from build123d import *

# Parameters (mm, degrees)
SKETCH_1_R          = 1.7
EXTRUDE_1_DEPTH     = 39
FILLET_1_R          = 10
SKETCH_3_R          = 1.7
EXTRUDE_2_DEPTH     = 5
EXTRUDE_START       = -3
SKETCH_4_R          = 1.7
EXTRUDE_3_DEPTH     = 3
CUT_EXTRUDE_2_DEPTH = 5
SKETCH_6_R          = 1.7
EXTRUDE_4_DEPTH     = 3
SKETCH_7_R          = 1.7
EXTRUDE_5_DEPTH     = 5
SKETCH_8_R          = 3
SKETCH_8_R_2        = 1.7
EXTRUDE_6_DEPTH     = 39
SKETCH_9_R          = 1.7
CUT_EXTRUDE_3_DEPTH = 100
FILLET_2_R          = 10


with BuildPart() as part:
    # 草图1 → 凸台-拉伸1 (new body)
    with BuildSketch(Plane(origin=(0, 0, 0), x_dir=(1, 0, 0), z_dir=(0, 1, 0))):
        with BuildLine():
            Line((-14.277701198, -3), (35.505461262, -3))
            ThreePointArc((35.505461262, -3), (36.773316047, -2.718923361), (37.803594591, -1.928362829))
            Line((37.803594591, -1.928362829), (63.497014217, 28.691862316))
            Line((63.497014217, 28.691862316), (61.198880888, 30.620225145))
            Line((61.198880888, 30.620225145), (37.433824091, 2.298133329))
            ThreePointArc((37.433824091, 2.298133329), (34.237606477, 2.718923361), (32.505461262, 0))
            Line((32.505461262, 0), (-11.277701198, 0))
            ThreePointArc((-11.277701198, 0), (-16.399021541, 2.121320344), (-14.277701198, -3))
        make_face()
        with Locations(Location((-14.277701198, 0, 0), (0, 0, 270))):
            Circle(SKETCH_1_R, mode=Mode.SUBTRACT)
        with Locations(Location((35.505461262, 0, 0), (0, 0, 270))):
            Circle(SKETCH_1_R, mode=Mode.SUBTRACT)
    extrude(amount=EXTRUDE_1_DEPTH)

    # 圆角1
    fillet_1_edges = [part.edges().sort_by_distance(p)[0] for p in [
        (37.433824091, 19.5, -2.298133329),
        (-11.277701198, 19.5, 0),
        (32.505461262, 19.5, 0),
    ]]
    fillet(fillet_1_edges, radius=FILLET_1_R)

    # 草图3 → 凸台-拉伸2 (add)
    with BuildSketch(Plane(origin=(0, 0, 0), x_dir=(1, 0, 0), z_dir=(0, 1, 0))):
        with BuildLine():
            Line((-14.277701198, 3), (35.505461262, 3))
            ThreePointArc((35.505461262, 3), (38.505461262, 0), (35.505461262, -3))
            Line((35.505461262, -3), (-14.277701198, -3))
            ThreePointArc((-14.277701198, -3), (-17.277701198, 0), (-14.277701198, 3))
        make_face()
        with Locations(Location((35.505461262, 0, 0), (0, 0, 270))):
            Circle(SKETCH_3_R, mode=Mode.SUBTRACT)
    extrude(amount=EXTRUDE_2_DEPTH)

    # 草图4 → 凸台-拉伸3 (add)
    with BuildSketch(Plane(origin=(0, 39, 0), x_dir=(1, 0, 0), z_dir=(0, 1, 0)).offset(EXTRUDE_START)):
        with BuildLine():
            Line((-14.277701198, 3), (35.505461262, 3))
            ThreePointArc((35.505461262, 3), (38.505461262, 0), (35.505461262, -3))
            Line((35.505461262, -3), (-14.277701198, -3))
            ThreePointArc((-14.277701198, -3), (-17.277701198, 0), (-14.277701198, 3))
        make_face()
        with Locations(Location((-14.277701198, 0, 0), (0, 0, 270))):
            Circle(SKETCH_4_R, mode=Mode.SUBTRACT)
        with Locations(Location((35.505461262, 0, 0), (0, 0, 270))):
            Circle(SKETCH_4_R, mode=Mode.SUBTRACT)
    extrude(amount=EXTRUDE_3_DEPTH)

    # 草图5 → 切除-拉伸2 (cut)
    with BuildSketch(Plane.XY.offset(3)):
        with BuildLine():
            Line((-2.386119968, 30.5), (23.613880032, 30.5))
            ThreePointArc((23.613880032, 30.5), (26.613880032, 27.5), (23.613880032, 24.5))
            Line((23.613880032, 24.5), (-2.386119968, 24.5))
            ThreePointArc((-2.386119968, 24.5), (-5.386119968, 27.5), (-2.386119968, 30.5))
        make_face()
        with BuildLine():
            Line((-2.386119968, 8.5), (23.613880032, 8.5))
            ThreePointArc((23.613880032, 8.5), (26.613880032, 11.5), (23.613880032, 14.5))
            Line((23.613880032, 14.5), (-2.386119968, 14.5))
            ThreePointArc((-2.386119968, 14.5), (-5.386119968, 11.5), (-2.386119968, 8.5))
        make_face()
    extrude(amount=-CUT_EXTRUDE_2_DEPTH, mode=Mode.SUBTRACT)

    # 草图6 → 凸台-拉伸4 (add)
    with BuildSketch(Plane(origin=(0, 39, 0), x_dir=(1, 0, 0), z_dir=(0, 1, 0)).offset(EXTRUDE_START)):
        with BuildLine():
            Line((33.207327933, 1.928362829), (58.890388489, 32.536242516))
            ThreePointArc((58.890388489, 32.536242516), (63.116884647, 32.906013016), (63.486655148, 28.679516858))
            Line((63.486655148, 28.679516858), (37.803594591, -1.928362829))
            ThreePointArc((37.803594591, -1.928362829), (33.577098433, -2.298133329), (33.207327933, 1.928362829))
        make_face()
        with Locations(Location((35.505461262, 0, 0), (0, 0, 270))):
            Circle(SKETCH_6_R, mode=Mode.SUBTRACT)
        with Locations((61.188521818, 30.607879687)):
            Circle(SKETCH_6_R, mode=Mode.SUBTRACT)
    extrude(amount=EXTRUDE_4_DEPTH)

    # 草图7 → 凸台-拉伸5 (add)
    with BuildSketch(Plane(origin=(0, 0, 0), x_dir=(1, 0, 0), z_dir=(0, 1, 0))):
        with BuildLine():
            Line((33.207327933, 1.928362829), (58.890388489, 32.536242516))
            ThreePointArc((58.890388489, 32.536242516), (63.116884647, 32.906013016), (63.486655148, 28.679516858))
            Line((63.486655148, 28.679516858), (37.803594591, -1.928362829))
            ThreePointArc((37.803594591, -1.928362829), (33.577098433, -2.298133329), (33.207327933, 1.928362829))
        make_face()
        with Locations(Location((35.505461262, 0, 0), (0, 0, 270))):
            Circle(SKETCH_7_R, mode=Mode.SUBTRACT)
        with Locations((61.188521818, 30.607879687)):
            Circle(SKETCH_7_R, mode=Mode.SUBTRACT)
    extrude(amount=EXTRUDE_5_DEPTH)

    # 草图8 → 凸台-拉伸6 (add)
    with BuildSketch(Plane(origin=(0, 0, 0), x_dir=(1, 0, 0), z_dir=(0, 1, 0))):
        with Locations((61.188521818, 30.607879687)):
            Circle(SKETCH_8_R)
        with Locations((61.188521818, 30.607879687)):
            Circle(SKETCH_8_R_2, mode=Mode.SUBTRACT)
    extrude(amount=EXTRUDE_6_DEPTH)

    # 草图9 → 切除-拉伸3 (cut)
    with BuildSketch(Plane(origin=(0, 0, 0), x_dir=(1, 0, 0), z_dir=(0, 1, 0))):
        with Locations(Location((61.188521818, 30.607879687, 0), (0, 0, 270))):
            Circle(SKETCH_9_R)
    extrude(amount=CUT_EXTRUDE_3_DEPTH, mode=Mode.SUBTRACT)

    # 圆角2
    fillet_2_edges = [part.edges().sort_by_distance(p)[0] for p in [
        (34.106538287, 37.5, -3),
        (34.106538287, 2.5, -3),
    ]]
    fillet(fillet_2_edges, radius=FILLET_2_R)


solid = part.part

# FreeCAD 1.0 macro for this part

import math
import FreeCAD as App
import Part
import Sketcher

V = App.Vector
Q = App.Units.Quantity


def edges_at(feature, points):
    """Names of the edges that pass closest to the given points."""
    edges = feature.Shape.Edges
    near = lambda p: min(range(len(edges)), key=lambda i: edges[i].distToShape(Part.Vertex(*p))[0])
    return sorted({f"Edge{near(p) + 1}" for p in points})

doc = App.newDocument("Part")
body = doc.addObject("PartDesign::Body", "Body")

sketch1 = doc.addObject("Sketcher::SketchObject", "Sketch")
body.addObject(sketch1)
sketch1.AttachmentSupport = (doc.XZ_Plane, [""])
sketch1.MapMode = "FlatFace"
sketch1.addGeometry(Part.LineSegment(V(-14.3, 3, 0), V(35.5, 3, 0)), False)
sketch1.addGeometry(Part.ArcOfCircle(Part.Circle(V(35.5, 0, 0), V(0, 0, 1), 3), math.radians(40), math.radians(90)), False)
sketch1.addGeometry(Part.LineSegment(V(37.8, 1.9, 0), V(63.5, -28.7, 0)), False)
sketch1.addGeometry(Part.LineSegment(V(63.5, -28.7, 0), V(61.2, -30.6, 0)), False)
sketch1.addGeometry(Part.LineSegment(V(61.2, -30.6, 0), V(37.4, -2.3, 0)), False)
sketch1.addGeometry(Part.ArcOfCircle(Part.Circle(V(35.5, 0, 0), V(0, 0, 1), 3), math.radians(180), math.radians(310)), False)
sketch1.addGeometry(Part.LineSegment(V(32.5, 0, 0), V(-11.3, 0, 0)), False)
sketch1.addGeometry(Part.ArcOfCircle(Part.Circle(V(-14.3, 0, 0), V(0, 0, 1), 3), math.radians(90), math.radians(360)), False)
sketch1.addGeometry(Part.Circle(V(-14.3, 0, 0), V(0, 0, 1), 1.7), False)
sketch1.addGeometry(Part.Circle(V(35.5, 0, 0), V(0, 0, 1), 1.7), False)
sketch1.addConstraint(Sketcher.Constraint("Tangent", 0, 2, 1, 2))
sketch1.addConstraint(Sketcher.Constraint("Tangent", 1, 1, 2, 1))
sketch1.addConstraint(Sketcher.Constraint("Coincident", 2, 2, 3, 1))
sketch1.addConstraint(Sketcher.Constraint("Coincident", 3, 2, 4, 1))
sketch1.addConstraint(Sketcher.Constraint("Coincident", 4, 2, 5, 2))
sketch1.addConstraint(Sketcher.Constraint("Coincident", 5, 1, 6, 1))
sketch1.addConstraint(Sketcher.Constraint("Coincident", 6, 2, 7, 2))
sketch1.addConstraint(Sketcher.Constraint("Tangent", 7, 1, 0, 1))
sketch1.addConstraint(Sketcher.Constraint("Horizontal", 0))
sketch1.addConstraint(Sketcher.Constraint("Horizontal", 6))
sketch1.addConstraint(Sketcher.Constraint("Coincident", 5, 3, 1, 3))
sketch1.addConstraint(Sketcher.Constraint("Coincident", 8, 3, 7, 3))
sketch1.addConstraint(Sketcher.Constraint("Coincident", 9, 3, 1, 3))
sketch1.addConstraint(Sketcher.Constraint("Equal", 1, 5))
sketch1.addConstraint(Sketcher.Constraint("Equal", 5, 7))
sketch1.addConstraint(Sketcher.Constraint("Equal", 8, 9))
sketch1.addConstraint(Sketcher.Constraint("PointOnObject", 1, 3, -1))
sketch1.addConstraint(Sketcher.Constraint("PointOnObject", 5, 1, -1))
sketch1.addConstraint(Sketcher.Constraint("Perpendicular", 2, 3))
sketch1.addConstraint(Sketcher.Constraint("Perpendicular", 3, 4))
sketch1.addConstraint(Sketcher.Constraint("Radius", 1, Q("3 mm")))
sketch1.addConstraint(Sketcher.Constraint("Diameter", 8, Q("3.4 mm")))
sketch1.addConstraint(Sketcher.Constraint("Angle", 2, Q("-50 deg")))
sketch1.addConstraint(Sketcher.Constraint("Distance", 3, Q("3 mm")))
sketch1.addConstraint(Sketcher.Constraint("DistanceX", 7, 3, -1, 1, Q("14.277701 mm")))
sketch1.addConstraint(Sketcher.Constraint("DistanceX", 0, 1, 0, 2, Q("49.783162 mm")))
sketch1.addConstraint(Sketcher.Constraint("DistanceX", -1, 1, 3, 2, Q("61.198881 mm")))
pad1 = doc.addObject("PartDesign::Pad", "Pad")
body.addObject(pad1)
pad1.Profile = sketch1
pad1.Length = 39
pad1.Reversed = True
doc.recompute()

fillet = doc.addObject("PartDesign::Fillet", "Fillet")
body.addObject(fillet)
fillet.Base = (pad1, edges_at(pad1, [(37.434, 19.5, -2.298), (-11.278, 19.5, 0), (32.505, 19.5, 0)]))
fillet.Radius = 10

sketch2 = doc.addObject("Sketcher::SketchObject", "Sketch001")
body.addObject(sketch2)
sketch2.AttachmentSupport = (doc.XZ_Plane, [""])
sketch2.MapMode = "FlatFace"
sketch2.addGeometry(Part.LineSegment(V(35.5, -3, 0), V(-14.3, -3, 0)), False)
sketch2.addGeometry(Part.ArcOfCircle(Part.Circle(V(-14.3, 0, 0), V(0, 0, 1), 3), math.radians(90), math.radians(270)), False)
sketch2.addGeometry(Part.LineSegment(V(-14.3, 3, 0), V(35.5, 3, 0)), False)
sketch2.addGeometry(Part.ArcOfCircle(Part.Circle(V(35.5, 0, 0), V(0, 0, 1), 3), math.radians(-90), math.radians(90)), False)
sketch2.addGeometry(Part.Circle(V(35.5, 0, 0), V(0, 0, 1), 1.7), False)
sketch2.addConstraint(Sketcher.Constraint("Tangent", 0, 2, 1, 2))
sketch2.addConstraint(Sketcher.Constraint("Tangent", 1, 1, 2, 1))
sketch2.addConstraint(Sketcher.Constraint("Tangent", 2, 2, 3, 2))
sketch2.addConstraint(Sketcher.Constraint("Tangent", 3, 1, 0, 1))
sketch2.addConstraint(Sketcher.Constraint("Horizontal", 0))
sketch2.addConstraint(Sketcher.Constraint("Horizontal", 2))
sketch2.addConstraint(Sketcher.Constraint("Coincident", 4, 3, 3, 3))
sketch2.addConstraint(Sketcher.Constraint("PointOnObject", 1, 3, -1))
sketch2.addConstraint(Sketcher.Constraint("Radius", 1, Q("3 mm")))
sketch2.addConstraint(Sketcher.Constraint("Diameter", 4, Q("3.4 mm")))
sketch2.addConstraint(Sketcher.Constraint("DistanceX", 1, 3, -1, 1, Q("14.277701 mm")))
sketch2.addConstraint(Sketcher.Constraint("DistanceX", 0, 2, 0, 1, Q("49.783162 mm")))
pad2 = doc.addObject("PartDesign::Pad", "Pad001")
body.addObject(pad2)
pad2.Profile = sketch2
pad2.Length = 5
pad2.Reversed = True

sketch3 = doc.addObject("Sketcher::SketchObject", "Sketch002")
body.addObject(sketch3)
sketch3.AttachmentSupport = (doc.XZ_Plane, [""])
sketch3.MapMode = "FlatFace"
sketch3.AttachmentOffset = App.Placement(V(0, 0, -36), App.Rotation())
sketch3.addGeometry(Part.LineSegment(V(35.5, -3, 0), V(-14.3, -3, 0)), False)
sketch3.addGeometry(Part.ArcOfCircle(Part.Circle(V(-14.3, 0, 0), V(0, 0, 1), 3), math.radians(90), math.radians(270)), False)
sketch3.addGeometry(Part.LineSegment(V(-14.3, 3, 0), V(35.5, 3, 0)), False)
sketch3.addGeometry(Part.ArcOfCircle(Part.Circle(V(35.5, 0, 0), V(0, 0, 1), 3), math.radians(-90), math.radians(90)), False)
sketch3.addGeometry(Part.Circle(V(35.5, 0, 0), V(0, 0, 1), 1.7), False)
sketch3.addGeometry(Part.Circle(V(-14.3, 0, 0), V(0, 0, 1), 1.7), False)
sketch3.addConstraint(Sketcher.Constraint("Tangent", 0, 2, 1, 2))
sketch3.addConstraint(Sketcher.Constraint("Tangent", 1, 1, 2, 1))
sketch3.addConstraint(Sketcher.Constraint("Tangent", 2, 2, 3, 2))
sketch3.addConstraint(Sketcher.Constraint("Tangent", 3, 1, 0, 1))
sketch3.addConstraint(Sketcher.Constraint("Horizontal", 0))
sketch3.addConstraint(Sketcher.Constraint("Horizontal", 2))
sketch3.addConstraint(Sketcher.Constraint("Coincident", 4, 3, 3, 3))
sketch3.addConstraint(Sketcher.Constraint("Coincident", 5, 3, 1, 3))
sketch3.addConstraint(Sketcher.Constraint("Equal", 4, 5))
sketch3.addConstraint(Sketcher.Constraint("PointOnObject", 1, 3, -1))
sketch3.addConstraint(Sketcher.Constraint("Radius", 1, Q("3 mm")))
sketch3.addConstraint(Sketcher.Constraint("Diameter", 4, Q("3.4 mm")))
sketch3.addConstraint(Sketcher.Constraint("DistanceX", 1, 3, -1, 1, Q("14.277701 mm")))
sketch3.addConstraint(Sketcher.Constraint("DistanceX", 0, 2, 0, 1, Q("49.783162 mm")))
pad3 = doc.addObject("PartDesign::Pad", "Pad002")
body.addObject(pad3)
pad3.Profile = sketch3
pad3.Length = 3
pad3.Reversed = True

sketch4 = doc.addObject("Sketcher::SketchObject", "Sketch003")
body.addObject(sketch4)
sketch4.AttachmentSupport = (doc.XY_Plane, [""])
sketch4.MapMode = "FlatFace"
sketch4.AttachmentOffset = App.Placement(V(0, 0, 3), App.Rotation())
sketch4.addGeometry(Part.LineSegment(V(23.6, 30.5, 0), V(-2.4, 30.5, 0)), False)
sketch4.addGeometry(Part.ArcOfCircle(Part.Circle(V(-2.4, 27.5, 0), V(0, 0, 1), 3), math.radians(90), math.radians(270)), False)
sketch4.addGeometry(Part.LineSegment(V(-2.4, 24.5, 0), V(23.6, 24.5, 0)), False)
sketch4.addGeometry(Part.ArcOfCircle(Part.Circle(V(23.6, 27.5, 0), V(0, 0, 1), 3), math.radians(-90), math.radians(90)), False)
sketch4.addGeometry(Part.LineSegment(V(-2.4, 8.5, 0), V(23.6, 8.5, 0)), False)
sketch4.addGeometry(Part.ArcOfCircle(Part.Circle(V(23.6, 11.5, 0), V(0, 0, 1), 3), math.radians(-90), math.radians(90)), False)
sketch4.addGeometry(Part.LineSegment(V(23.6, 14.5, 0), V(-2.4, 14.5, 0)), False)
sketch4.addGeometry(Part.ArcOfCircle(Part.Circle(V(-2.4, 11.5, 0), V(0, 0, 1), 3), math.radians(90), math.radians(270)), False)
sketch4.addConstraint(Sketcher.Constraint("Tangent", 0, 2, 1, 1))
sketch4.addConstraint(Sketcher.Constraint("Tangent", 1, 2, 2, 1))
sketch4.addConstraint(Sketcher.Constraint("Tangent", 2, 2, 3, 1))
sketch4.addConstraint(Sketcher.Constraint("Tangent", 3, 2, 0, 1))
sketch4.addConstraint(Sketcher.Constraint("Tangent", 4, 2, 5, 1))
sketch4.addConstraint(Sketcher.Constraint("Tangent", 5, 2, 6, 1))
sketch4.addConstraint(Sketcher.Constraint("Tangent", 6, 2, 7, 1))
sketch4.addConstraint(Sketcher.Constraint("Tangent", 7, 2, 4, 1))
sketch4.addConstraint(Sketcher.Constraint("Horizontal", 0))
sketch4.addConstraint(Sketcher.Constraint("Horizontal", 2))
sketch4.addConstraint(Sketcher.Constraint("Horizontal", 4))
sketch4.addConstraint(Sketcher.Constraint("Horizontal", 6))
sketch4.addConstraint(Sketcher.Constraint("Equal", 3, 5))
sketch4.addConstraint(Sketcher.Constraint("Vertical", 3, 3, 5, 3))
sketch4.addConstraint(Sketcher.Constraint("Vertical", 1, 3, 7, 3))
sketch4.addConstraint(Sketcher.Constraint("Radius", 1, Q("3 mm")))
sketch4.addConstraint(Sketcher.Constraint("DistanceX", 0, 2, 0, 1, Q("26 mm")))
sketch4.addConstraint(Sketcher.Constraint("DistanceY", 5, 3, 3, 3, Q("16 mm")))
sketch4.addConstraint(Sketcher.Constraint("DistanceY", -1, 1, 1, 3, Q("27.5 mm")))
sketch4.addConstraint(Sketcher.Constraint("DistanceX", 1, 3, -1, 1, Q("2.38612 mm")))
pocket1 = doc.addObject("PartDesign::Pocket", "Pocket")
body.addObject(pocket1)
pocket1.Profile = sketch4
pocket1.Length = 5

sketch5 = doc.addObject("Sketcher::SketchObject", "Sketch004")
body.addObject(sketch5)
sketch5.AttachmentSupport = (doc.XZ_Plane, [""])
sketch5.MapMode = "FlatFace"
sketch5.AttachmentOffset = App.Placement(V(0, 0, -36), App.Rotation())
sketch5.addGeometry(Part.LineSegment(V(58.9, -32.5, 0), V(33.2, -1.9, 0)), False)
sketch5.addGeometry(Part.ArcOfCircle(Part.Circle(V(35.5, 0, 0), V(0, 0, 1), 3), math.radians(40), math.radians(220)), False)
sketch5.addGeometry(Part.LineSegment(V(37.8, 1.9, 0), V(63.5, -28.7, 0)), False)
sketch5.addGeometry(Part.ArcOfCircle(Part.Circle(V(61.2, -30.6, 0), V(0, 0, 1), 3), math.radians(-140), math.radians(40)), False)
sketch5.addGeometry(Part.Circle(V(35.5, 0, 0), V(0, 0, 1), 1.7), False)
sketch5.addGeometry(Part.Circle(V(61.2, -30.6, 0), V(0, 0, 1), 1.7), False)
sketch5.addConstraint(Sketcher.Constraint("Tangent", 0, 2, 1, 2))
sketch5.addConstraint(Sketcher.Constraint("Tangent", 1, 1, 2, 1))
sketch5.addConstraint(Sketcher.Constraint("Tangent", 2, 2, 3, 2))
sketch5.addConstraint(Sketcher.Constraint("Tangent", 3, 1, 0, 1))
sketch5.addConstraint(Sketcher.Constraint("Coincident", 4, 3, 1, 3))
sketch5.addConstraint(Sketcher.Constraint("Coincident", 5, 3, 3, 3))
sketch5.addConstraint(Sketcher.Constraint("Equal", 1, 3))
sketch5.addConstraint(Sketcher.Constraint("Equal", 4, 5))
sketch5.addConstraint(Sketcher.Constraint("PointOnObject", 1, 3, -1))
sketch5.addConstraint(Sketcher.Constraint("Radius", 1, Q("3 mm")))
sketch5.addConstraint(Sketcher.Constraint("Diameter", 4, Q("3.4 mm")))
sketch5.addConstraint(Sketcher.Constraint("Angle", 0, Q("130 deg")))
sketch5.addConstraint(Sketcher.Constraint("Distance", 0, Q("39.955749 mm")))
sketch5.addConstraint(Sketcher.Constraint("DistanceX", -1, 1, 1, 3, Q("35.505461 mm")))
pad4 = doc.addObject("PartDesign::Pad", "Pad003")
body.addObject(pad4)
pad4.Profile = sketch5
pad4.Length = 3
pad4.Reversed = True

sketch6 = doc.addObject("Sketcher::SketchObject", "Sketch005")
body.addObject(sketch6)
sketch6.AttachmentSupport = (doc.XZ_Plane, [""])
sketch6.MapMode = "FlatFace"
sketch6.addGeometry(Part.LineSegment(V(58.9, -32.5, 0), V(33.2, -1.9, 0)), False)
sketch6.addGeometry(Part.ArcOfCircle(Part.Circle(V(35.5, 0, 0), V(0, 0, 1), 3), math.radians(40), math.radians(220)), False)
sketch6.addGeometry(Part.LineSegment(V(37.8, 1.9, 0), V(63.5, -28.7, 0)), False)
sketch6.addGeometry(Part.ArcOfCircle(Part.Circle(V(61.2, -30.6, 0), V(0, 0, 1), 3), math.radians(-140), math.radians(40)), False)
sketch6.addGeometry(Part.Circle(V(35.5, 0, 0), V(0, 0, 1), 1.7), False)
sketch6.addGeometry(Part.Circle(V(61.2, -30.6, 0), V(0, 0, 1), 1.7), False)
sketch6.addConstraint(Sketcher.Constraint("Tangent", 0, 2, 1, 2))
sketch6.addConstraint(Sketcher.Constraint("Tangent", 1, 1, 2, 1))
sketch6.addConstraint(Sketcher.Constraint("Tangent", 2, 2, 3, 2))
sketch6.addConstraint(Sketcher.Constraint("Tangent", 3, 1, 0, 1))
sketch6.addConstraint(Sketcher.Constraint("Coincident", 4, 3, 1, 3))
sketch6.addConstraint(Sketcher.Constraint("Coincident", 5, 3, 3, 3))
sketch6.addConstraint(Sketcher.Constraint("Equal", 1, 3))
sketch6.addConstraint(Sketcher.Constraint("Equal", 4, 5))
sketch6.addConstraint(Sketcher.Constraint("PointOnObject", 1, 3, -1))
sketch6.addConstraint(Sketcher.Constraint("Radius", 1, Q("3 mm")))
sketch6.addConstraint(Sketcher.Constraint("Diameter", 4, Q("3.4 mm")))
sketch6.addConstraint(Sketcher.Constraint("Angle", 0, Q("130 deg")))
sketch6.addConstraint(Sketcher.Constraint("Distance", 0, Q("39.955749 mm")))
sketch6.addConstraint(Sketcher.Constraint("DistanceX", -1, 1, 1, 3, Q("35.505461 mm")))
pad5 = doc.addObject("PartDesign::Pad", "Pad004")
body.addObject(pad5)
pad5.Profile = sketch6
pad5.Length = 5
pad5.Reversed = True

sketch7 = doc.addObject("Sketcher::SketchObject", "Sketch006")
body.addObject(sketch7)
sketch7.AttachmentSupport = (doc.XZ_Plane, [""])
sketch7.MapMode = "FlatFace"
sketch7.addGeometry(Part.Circle(V(61.2, -30.6, 0), V(0, 0, 1), 3), False)
sketch7.addGeometry(Part.Circle(V(61.2, -30.6, 0), V(0, 0, 1), 1.7), False)
sketch7.addConstraint(Sketcher.Constraint("Coincident", 1, 3, 0, 3))
sketch7.addConstraint(Sketcher.Constraint("Diameter", 0, Q("6 mm")))
sketch7.addConstraint(Sketcher.Constraint("Diameter", 1, Q("3.4 mm")))
sketch7.addConstraint(Sketcher.Constraint("DistanceX", -1, 1, 0, 3, Q("61.188522 mm")))
sketch7.addConstraint(Sketcher.Constraint("DistanceY", 0, 3, -1, 1, Q("30.60788 mm")))
pad6 = doc.addObject("PartDesign::Pad", "Pad005")
body.addObject(pad6)
pad6.Profile = sketch7
pad6.Length = 39
pad6.Reversed = True

sketch8 = doc.addObject("Sketcher::SketchObject", "Sketch007")
body.addObject(sketch8)
sketch8.AttachmentSupport = (doc.XZ_Plane, [""])
sketch8.MapMode = "FlatFace"
sketch8.addGeometry(Part.Circle(V(61.2, -30.6, 0), V(0, 0, 1), 1.7), False)
sketch8.addConstraint(Sketcher.Constraint("Diameter", 0, Q("3.4 mm")))
sketch8.addConstraint(Sketcher.Constraint("DistanceX", -1, 1, 0, 3, Q("61.188522 mm")))
sketch8.addConstraint(Sketcher.Constraint("DistanceY", 0, 3, -1, 1, Q("30.60788 mm")))
pocket2 = doc.addObject("PartDesign::Pocket", "Pocket001")
body.addObject(pocket2)
pocket2.Profile = sketch8
pocket2.Length = 100
doc.recompute()

fillet2 = doc.addObject("PartDesign::Fillet", "Fillet001")
body.addObject(fillet2)
fillet2.Base = (pocket2, edges_at(pocket2, [(34.107, 37.5, -3), (34.107, 2.5, -3)]))
fillet2.Radius = 10

doc.recompute()
